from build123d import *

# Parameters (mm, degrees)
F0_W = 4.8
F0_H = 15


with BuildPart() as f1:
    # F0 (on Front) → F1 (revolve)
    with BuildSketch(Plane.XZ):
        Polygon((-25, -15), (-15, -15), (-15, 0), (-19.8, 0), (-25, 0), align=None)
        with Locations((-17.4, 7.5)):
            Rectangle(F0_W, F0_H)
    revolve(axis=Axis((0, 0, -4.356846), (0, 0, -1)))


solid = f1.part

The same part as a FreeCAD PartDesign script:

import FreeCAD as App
import Part
import Sketcher

V = App.Vector


def add_polygon(sketch, points):
    """Adds a closed chain of lines whose ends are joined by coincident constraints."""
    first, n = sketch.GeometryCount, len(points)
    for a, b in zip(points, points[1:] + points[:1]):
        sketch.addGeometry(Part.LineSegment(App.Vector(*a, 0), App.Vector(*b, 0)), False)
    for i in range(n):
        sketch.addConstraint(Sketcher.Constraint("Coincident", first + i, 2, first + (i + 1) % n, 1))

doc = App.newDocument("Part")
body = doc.addObject("PartDesign::Body", "Body")

# Sketch on XZ plane
sketch1 = body.newObject("Sketcher::SketchObject", "Sketch")
sketch1.AttachmentSupport = (doc.getObject("XZ_Plane"), [""])
sketch1.MapMode = "FlatFace"
add_polygon(sketch1, [(-25, -15), (-15, -15), (-15, 15), (-19.8, 15), (-19.8, 0), (-25, 0)])  # lines 0-5
sketch1.addConstraint(Sketcher.Constraint("Horizontal", 0))
sketch1.addConstraint(Sketcher.Constraint("Vertical", 1))
sketch1.addConstraint(Sketcher.Constraint("Horizontal", 2))
sketch1.addConstraint(Sketcher.Constraint("Vertical", 3))
sketch1.addConstraint(Sketcher.Constraint("Horizontal", 4))
sketch1.addConstraint(Sketcher.Constraint("Vertical", 5))
sketch1.addConstraint(Sketcher.Constraint("PointOnObject", 3, 2, -1))
sketch1.addConstraint(Sketcher.Constraint("Equal", 3, 5))
sketch1.addConstraint(Sketcher.Constraint("DistanceX", 0, 1, 0, 2, 10.0))
sketch1.addConstraint(Sketcher.Constraint("DistanceY", 1, 1, 1, 2, 30.0))
sketch1.addConstraint(Sketcher.Constraint("DistanceX", 2, 2, 2, 1, 4.8))
sketch1.addConstraint(Sketcher.Constraint("DistanceX", 0, 2, -1, 1, 15.0))
revolution = body.newObject("PartDesign::Revolution", "Revolution")
revolution.Profile = sketch1
revolution.ReferenceAxis = (sketch1, ["V_Axis"])
revolution.Angle = 360

doc.recompute()
